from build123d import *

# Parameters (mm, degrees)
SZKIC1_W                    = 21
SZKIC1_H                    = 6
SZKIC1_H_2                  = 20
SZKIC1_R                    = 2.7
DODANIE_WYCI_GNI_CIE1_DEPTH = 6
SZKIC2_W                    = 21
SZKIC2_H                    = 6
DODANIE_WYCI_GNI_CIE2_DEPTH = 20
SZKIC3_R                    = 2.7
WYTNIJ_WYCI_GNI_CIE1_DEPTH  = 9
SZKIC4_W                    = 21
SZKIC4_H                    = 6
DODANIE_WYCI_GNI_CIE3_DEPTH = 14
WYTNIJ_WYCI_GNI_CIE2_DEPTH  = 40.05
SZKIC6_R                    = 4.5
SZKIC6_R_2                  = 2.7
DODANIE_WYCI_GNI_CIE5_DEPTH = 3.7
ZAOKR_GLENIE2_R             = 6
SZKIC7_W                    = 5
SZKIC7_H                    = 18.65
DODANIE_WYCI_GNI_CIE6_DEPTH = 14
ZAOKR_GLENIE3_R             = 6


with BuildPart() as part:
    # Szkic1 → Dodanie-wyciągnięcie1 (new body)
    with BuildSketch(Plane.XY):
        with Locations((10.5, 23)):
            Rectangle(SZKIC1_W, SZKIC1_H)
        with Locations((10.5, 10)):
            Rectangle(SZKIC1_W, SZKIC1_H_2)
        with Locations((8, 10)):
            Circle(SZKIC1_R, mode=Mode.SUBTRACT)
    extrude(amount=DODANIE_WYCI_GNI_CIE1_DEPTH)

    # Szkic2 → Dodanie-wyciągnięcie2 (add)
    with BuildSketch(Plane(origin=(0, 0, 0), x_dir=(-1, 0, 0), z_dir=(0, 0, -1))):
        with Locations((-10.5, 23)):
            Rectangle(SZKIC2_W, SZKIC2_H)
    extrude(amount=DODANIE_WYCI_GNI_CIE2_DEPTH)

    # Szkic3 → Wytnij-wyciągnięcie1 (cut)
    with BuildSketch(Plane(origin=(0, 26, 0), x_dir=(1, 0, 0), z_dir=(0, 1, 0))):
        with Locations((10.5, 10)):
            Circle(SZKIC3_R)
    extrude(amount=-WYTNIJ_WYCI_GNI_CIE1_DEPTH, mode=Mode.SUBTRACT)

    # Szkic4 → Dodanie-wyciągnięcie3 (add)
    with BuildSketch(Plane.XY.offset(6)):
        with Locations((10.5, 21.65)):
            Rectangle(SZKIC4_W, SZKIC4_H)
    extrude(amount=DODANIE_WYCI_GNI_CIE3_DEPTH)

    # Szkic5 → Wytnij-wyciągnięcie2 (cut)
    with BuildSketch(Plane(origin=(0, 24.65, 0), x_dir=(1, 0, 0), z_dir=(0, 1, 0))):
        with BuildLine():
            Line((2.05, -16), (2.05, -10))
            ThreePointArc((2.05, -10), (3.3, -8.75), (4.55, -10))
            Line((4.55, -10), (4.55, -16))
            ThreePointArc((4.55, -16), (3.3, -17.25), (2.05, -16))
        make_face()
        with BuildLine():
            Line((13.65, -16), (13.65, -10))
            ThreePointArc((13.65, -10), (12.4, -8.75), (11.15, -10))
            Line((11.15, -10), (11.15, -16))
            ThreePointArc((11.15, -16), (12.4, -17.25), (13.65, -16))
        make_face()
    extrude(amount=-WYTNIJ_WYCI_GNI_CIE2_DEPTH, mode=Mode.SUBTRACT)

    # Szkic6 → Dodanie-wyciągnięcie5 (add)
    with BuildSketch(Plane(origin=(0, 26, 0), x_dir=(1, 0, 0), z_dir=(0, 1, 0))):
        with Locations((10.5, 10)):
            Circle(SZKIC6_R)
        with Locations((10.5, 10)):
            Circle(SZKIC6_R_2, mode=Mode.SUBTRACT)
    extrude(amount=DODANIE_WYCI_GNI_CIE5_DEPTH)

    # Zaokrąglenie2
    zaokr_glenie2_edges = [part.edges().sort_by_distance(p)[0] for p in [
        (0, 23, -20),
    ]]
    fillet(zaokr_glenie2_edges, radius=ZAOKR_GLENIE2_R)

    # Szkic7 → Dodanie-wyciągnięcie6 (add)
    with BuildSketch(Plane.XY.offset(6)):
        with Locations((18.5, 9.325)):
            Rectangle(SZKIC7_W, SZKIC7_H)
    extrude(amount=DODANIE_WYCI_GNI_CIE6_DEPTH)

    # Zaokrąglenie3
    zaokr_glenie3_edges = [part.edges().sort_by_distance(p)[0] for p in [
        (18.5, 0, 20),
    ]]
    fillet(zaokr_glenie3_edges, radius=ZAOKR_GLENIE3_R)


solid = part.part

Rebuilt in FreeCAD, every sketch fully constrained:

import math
import FreeCAD as App
import Part
import Sketcher
from FreeCAD import Vector


def edges_at(feature, points):
    """Names of the edges that pass closest to the given points."""
    edges = feature.Shape.Edges
    near = lambda p: min(range(len(edges)), key=lambda i: edges[i].distToShape(Part.Vertex(*p))[0])
    return sorted({f"Edge{near(p) + 1}" for p in points})


def add_polygon(sketch, points):
    """Adds a closed chain of lines whose ends are joined by coincident constraints."""
    first, n = sketch.GeometryCount, len(points)
    for a, b in zip(points, points[1:] + points[:1]):
        sketch.addGeometry(Part.LineSegment(App.Vector(*a, 0), App.Vector(*b, 0)), False)
    for i in range(n):
        sketch.addConstraint(Sketcher.Constraint("Coincident", first + i, 2, first + (i + 1) % n, 1))

doc = App.newDocument("Part")
params = doc.addObject("Spreadsheet::Sheet", "Params")
for row, (alias, value) in enumerate([
    ("sketch1_diameter", "5.4 mm"),
    ("sketch1_width", "21 mm"),
    ("sketch1_height", "26 mm"),
    ("pad1_length", "6 mm"),
    ("sketch2_width", "21 mm"),
    ("sketch2_height", "6 mm"),
    ("pad2_length", "20 mm"),
    ("sketch3_diameter", "5.4 mm"),
    ("pocket1_length", "9 mm"),
    ("sketch4_width", "21 mm"),
    ("sketch4_height", "6 mm"),
    ("pad3_length", "14 mm"),
    ("sketch5_height", "6 mm"),
    ("sketch5_radius", "1.25 mm"),
    ("pocket2_length", "40.05 mm"),
    ("sketch6_diameter", "9 mm"),
    ("sketch6_diameter2", "5.4 mm"),
    ("pad4_length", "3.7 mm"),
    ("fillet_radius", "6 mm"),
    ("sketch7_width", "5 mm"),
    ("sketch7_height", "18.65 mm"),
    ("pad5_length", "14 mm"),
    ("fillet2_radius", "6 mm"),
], start=1):
    params.set(f"A{row}", alias)
    params.set(f"B{row}", "=" + value)
    params.setAlias(f"B{row}", alias)

body = doc.addObject("PartDesign::Body", "Body")

# Sketch on XY plane
sketch1 = body.newObject("Sketcher::SketchObject", "Sketch")
sketch1.AttachmentSupport = (doc.getObject("XY_Plane"), [""])
sketch1.MapMode = "FlatFace"
add_polygon(sketch1, [(0, 26), (0, 0), (21, 0), (21, 26)])  # lines 0-3
sketch1.addGeometry(Part.Circle(Vector(8, 10, 0), Vector(0, 0, 1), 2.7), False)  # 4
sketch1.addConstraint(Sketcher.Constraint("Vertical", 0))
sketch1.addConstraint(Sketcher.Constraint("Horizontal", 1))
sketch1.addConstraint(Sketcher.Constraint("Vertical", 2))
sketch1.addConstraint(Sketcher.Constraint("Horizontal", 3))
sketch1.addConstraint(Sketcher.Constraint("Coincident", 0, 2, -1, 1))
sketch1.addConstraint(Sketcher.Constraint("Diameter", 4, 5.4))
sketch1.addConstraint(Sketcher.Constraint("DistanceX", 1, 1, 1, 2, 21.0))
sketch1.addConstraint(Sketcher.Constraint("DistanceY", 0, 2, 0, 1, 26.0))
sketch1.addConstraint(Sketcher.Constraint("DistanceX", -1, 1, 4, 3, 8.0))
sketch1.addConstraint(Sketcher.Constraint("DistanceY", -1, 1, 4, 3, 10.0))
sketch1.setExpression("Constraints[9]", "Params.sketch1_diameter")
sketch1.setExpression("Constraints[10]", "Params.sketch1_width")
sketch1.setExpression("Constraints[11]", "Params.sketch1_height")
pad1 = body.newObject("PartDesign::Pad", "Pad")
pad1.Profile = sketch1
pad1.setExpression("Length", "Params.pad1_length")

# Sketch on XY plane
sketch2 = body.newObject("Sketcher::SketchObject", "Sketch001")
sketch2.AttachmentSupport = (doc.getObject("XY_Plane"), [""])
sketch2.MapMode = "FlatFace"
add_polygon(sketch2, [(21, 26), (21, 20), (0, 20), (0, 26)])  # lines 0-3
sketch2.addConstraint(Sketcher.Constraint("Vertical", 0))
sketch2.addConstraint(Sketcher.Constraint("Horizontal", 1))
sketch2.addConstraint(Sketcher.Constraint("Vertical", 2))
sketch2.addConstraint(Sketcher.Constraint("Horizontal", 3))
sketch2.addConstraint(Sketcher.Constraint("PointOnObject", 1, 2, -2))
sketch2.addConstraint(Sketcher.Constraint("DistanceX", 1, 2, 1, 1, 21.0))
sketch2.addConstraint(Sketcher.Constraint("DistanceY", 0, 2, 0, 1, 6.0))
sketch2.addConstraint(Sketcher.Constraint("DistanceY", -1, 1, 0, 2, 20.0))
sketch2.setExpression("Constraints[9]", "Params.sketch2_width")
sketch2.setExpression("Constraints[10]", "Params.sketch2_height")
pad2 = body.newObject("PartDesign::Pad", "Pad001")
pad2.Profile = sketch2
pad2.setExpression("Length", "Params.pad2_length")
pad2.Reversed = True

# Sketch on XZ plane
sketch3 = body.newObject("Sketcher::SketchObject", "Sketch002")
sketch3.AttachmentSupport = (doc.getObject("XZ_Plane"), [""])
sketch3.MapMode = "FlatFace"
sketch3.AttachmentOffset = App.Placement(Vector(0, 0, -26), App.Rotation())
sketch3.addGeometry(Part.Circle(Vector(10.5, -10, 0), Vector(0, 0, 1), 2.7), False)
sketch3.addConstraint(Sketcher.Constraint("Diameter", 0, 5.4))
sketch3.addConstraint(Sketcher.Constraint("DistanceY", 0, 3, -1, 1, 10.0))
sketch3.addConstraint(Sketcher.Constraint("DistanceX", -1, 1, 0, 3, 10.5))
sketch3.setExpression("Constraints[0]", "Params.sketch3_diameter")
pocket1 = body.newObject("PartDesign::Pocket", "Pocket")
pocket1.Profile = sketch3
pocket1.setExpression("Length", "Params.pocket1_length")
pocket1.Reversed = True

# Sketch on XY plane
sketch4 = body.newObject("Sketcher::SketchObject", "Sketch003")
sketch4.AttachmentSupport = (doc.getObject("XY_Plane"), [""])
sketch4.MapMode = "FlatFace"
sketch4.AttachmentOffset = App.Placement(Vector(0, 0, 6), App.Rotation())
add_polygon(sketch4, [(0, 24.65), (0, 18.65), (21, 18.65), (21, 24.65)])  # lines 0-3
sketch4.addConstraint(Sketcher.Constraint("Vertical", 0))
sketch4.addConstraint(Sketcher.Constraint("Horizontal", 1))
sketch4.addConstraint(Sketcher.Constraint("Vertical", 2))
sketch4.addConstraint(Sketcher.Constraint("Horizontal", 3))
sketch4.addConstraint(Sketcher.Constraint("PointOnObject", 0, 2, -2))
sketch4.addConstraint(Sketcher.Constraint("DistanceX", 1, 1, 1, 2, 21.0))
sketch4.addConstraint(Sketcher.Constraint("DistanceY", 0, 2, 0, 1, 6.0))
sketch4.addConstraint(Sketcher.Constraint("DistanceY", -1, 1, 0, 2, 18.65))
sketch4.setExpression("Constraints[9]", "Params.sketch4_width")
sketch4.setExpression("Constraints[10]", "Params.sketch4_height")
pad3 = body.newObject("PartDesign::Pad", "Pad002")
pad3.Profile = sketch4
pad3.setExpression("Length", "Params.pad3_length")

# Sketch on XZ plane
sketch5 = body.newObject("Sketcher::SketchObject", "Sketch004")
sketch5.AttachmentSupport = (doc.getObject("XZ_Plane"), [""])
sketch5.MapMode = "FlatFace"
sketch5.AttachmentOffset = App.Placement(Vector(0, 0, -24.65), App.Rotation())
sketch5.addGeometry(Part.LineSegment(Vector(2.05, 10, 0), Vector(2.05, 16, 0)), False)
sketch5.addGeometry(Part.ArcOfCircle(Part.Circle(Vector(3.3, 16, 0), Vector(0, 0, 1), 1.25), math.radians(0), math.radians(180)), False)
sketch5.addGeometry(Part.LineSegment(Vector(4.55, 16, 0), Vector(4.55, 10, 0)), False)
sketch5.addGeometry(Part.ArcOfCircle(Part.Circle(Vector(3.3, 10, 0), Vector(0, 0, 1), 1.25), math.radians(180), math.radians(360)), False)
sketch5.addGeometry(Part.LineSegment(Vector(13.65, 16, 0), Vector(13.65, 10, 0)), False)
sketch5.addGeometry(Part.ArcOfCircle(Part.Circle(Vector(12.4, 10, 0), Vector(0, 0, 1), 1.25), math.radians(180), math.radians(360)), False)
sketch5.addGeometry(Part.LineSegment(Vector(11.15, 10, 0), Vector(11.15, 16, 0)), False)
sketch5.addGeometry(Part.ArcOfCircle(Part.Circle(Vector(12.4, 16, 0), Vector(0, 0, 1), 1.25), math.radians(0), math.radians(180)), False)
sketch5.addConstraint(Sketcher.Constraint("Tangent", 0, 2, 1, 2))
sketch5.addConstraint(Sketcher.Constraint("Tangent", 1, 1, 2, 1))
sketch5.addConstraint(Sketcher.Constraint("Tangent", 2, 2, 3, 2))
sketch5.addConstraint(Sketcher.Constraint("Tangent", 3, 1, 0, 1))
sketch5.addConstraint(Sketcher.Constraint("Tangent", 4, 2, 5, 2))
sketch5.addConstraint(Sketcher.Constraint("Tangent", 5, 1, 6, 1))
sketch5.addConstraint(Sketcher.Constraint("Tangent", 6, 2, 7, 2))
sketch5.addConstraint(Sketcher.Constraint("Tangent", 7, 1, 4, 1))
sketch5.addConstraint(Sketcher.Constraint("Vertical", 0))
sketch5.addConstraint(Sketcher.Constraint("Vertical", 2))
sketch5.addConstraint(Sketcher.Constraint("Vertical", 4))
sketch5.addConstraint(Sketcher.Constraint("Vertical", 6))
sketch5.addConstraint(Sketcher.Constraint("Equal", 3, 5))
sketch5.addConstraint(Sketcher.Constraint("Horizontal", 3, 3, 5, 3))
sketch5.addConstraint(Sketcher.Constraint("Horizontal", 1, 3, 7, 3))
sketch5.addConstraint(Sketcher.Constraint("DistanceY", 0, 1, 0, 2, 6.0))
sketch5.addConstraint(Sketcher.Constraint("Radius", 1, 1.25))
sketch5.addConstraint(Sketcher.Constraint("DistanceY", -1, 1, 1, 3, 16.0))
sketch5.addConstraint(Sketcher.Constraint("DistanceX", -1, 1, 1, 3, 3.3))
sketch5.addConstraint(Sketcher.Constraint("DistanceX", -1, 1, 5, 3, 12.4))
sketch5.setExpression("Constraints[15]", "Params.sketch5_height")
sketch5.setExpression("Constraints[16]", "Params.sketch5_radius")
pocket2 = body.newObject("PartDesign::Pocket", "Pocket001")
pocket2.Profile = sketch5
pocket2.setExpression("Length", "Params.pocket2_length")
pocket2.Reversed = True

# Sketch on XZ plane
sketch6 = body.newObject("Sketcher::SketchObject", "Sketch005")
sketch6.AttachmentSupport = (doc.getObject("XZ_Plane"), [""])
sketch6.MapMode = "FlatFace"
sketch6.AttachmentOffset = App.Placement(Vector(0, 0, -26), App.Rotation())
sketch6.addGeometry(Part.Circle(Vector(10.5, -10, 0), Vector(0, 0, 1), 4.5), False)
sketch6.addGeometry(Part.Circle(Vector(10.5, -10, 0), Vector(0, 0, 1), 2.7), False)
sketch6.addConstraint(Sketcher.Constraint("Coincident", 1, 3, 0, 3))
sketch6.addConstraint(Sketcher.Constraint("Diameter", 0, 9.0))
sketch6.addConstraint(Sketcher.Constraint("Diameter", 1, 5.4))
sketch6.addConstraint(Sketcher.Constraint("DistanceY", 0, 3, -1, 1, 10.0))
sketch6.addConstraint(Sketcher.Constraint("DistanceX", -1, 1, 0, 3, 10.5))
sketch6.setExpression("Constraints[1]", "Params.sketch6_diameter")
sketch6.setExpression("Constraints[2]", "Params.sketch6_diameter2")
pad4 = body.newObject("PartDesign::Pad", "Pad003")
pad4.Profile = sketch6
pad4.setExpression("Length", "Params.pad4_length")
pad4.Reversed = True
doc.recompute()

fillet = body.newObject("PartDesign::Fillet", "Fillet")
fillet.Base = (pad4, edges_at(pad4, [(0, 23, -20)]))
fillet.setExpression("Radius", "Params.fillet_radius")

# Sketch on XY plane
sketch7 = body.newObject("Sketcher::SketchObject", "Sketch006")
sketch7.AttachmentSupport = (doc.getObject("XY_Plane"), [""])
sketch7.MapMode = "FlatFace"
sketch7.AttachmentOffset = App.Placement(Vector(0, 0, 6), App.Rotation())
add_polygon(sketch7, [(16, 18.65), (16, 0), (21, 0), (21, 18.65)])  # lines 0-3
sketch7.addConstraint(Sketcher.Constraint("Vertical", 0))
sketch7.addConstraint(Sketcher.Constraint("Horizontal", 1))
sketch7.addConstraint(Sketcher.Constraint("Vertical", 2))
sketch7.addConstraint(Sketcher.Constraint("Horizontal", 3))
sketch7.addConstraint(Sketcher.Constraint("PointOnObject", 0, 2, -1))
sketch7.addConstraint(Sketcher.Constraint("DistanceX", 1, 1, 1, 2, 5.0))
sketch7.addConstraint(Sketcher.Constraint("DistanceX", -1, 1, 0, 2, 16.0))
sketch7.addConstraint(Sketcher.Constraint("DistanceY", 0, 2, 0, 1, 18.65))
sketch7.setExpression("Constraints[9]", "Params.sketch7_width")
sketch7.setExpression("Constraints[11]", "Params.sketch7_height")
pad5 = body.newObject("PartDesign::Pad", "Pad004")
pad5.Profile = sketch7
pad5.setExpression("Length", "Params.pad5_length")
doc.recompute()

fillet2 = body.newObject("PartDesign::Fillet", "Fillet001")
fillet2.Base = (pad5, edges_at(pad5, [(18.5, 0, 20)]))
fillet2.setExpression("Radius", "Params.fillet2_radius")

doc.recompute()
